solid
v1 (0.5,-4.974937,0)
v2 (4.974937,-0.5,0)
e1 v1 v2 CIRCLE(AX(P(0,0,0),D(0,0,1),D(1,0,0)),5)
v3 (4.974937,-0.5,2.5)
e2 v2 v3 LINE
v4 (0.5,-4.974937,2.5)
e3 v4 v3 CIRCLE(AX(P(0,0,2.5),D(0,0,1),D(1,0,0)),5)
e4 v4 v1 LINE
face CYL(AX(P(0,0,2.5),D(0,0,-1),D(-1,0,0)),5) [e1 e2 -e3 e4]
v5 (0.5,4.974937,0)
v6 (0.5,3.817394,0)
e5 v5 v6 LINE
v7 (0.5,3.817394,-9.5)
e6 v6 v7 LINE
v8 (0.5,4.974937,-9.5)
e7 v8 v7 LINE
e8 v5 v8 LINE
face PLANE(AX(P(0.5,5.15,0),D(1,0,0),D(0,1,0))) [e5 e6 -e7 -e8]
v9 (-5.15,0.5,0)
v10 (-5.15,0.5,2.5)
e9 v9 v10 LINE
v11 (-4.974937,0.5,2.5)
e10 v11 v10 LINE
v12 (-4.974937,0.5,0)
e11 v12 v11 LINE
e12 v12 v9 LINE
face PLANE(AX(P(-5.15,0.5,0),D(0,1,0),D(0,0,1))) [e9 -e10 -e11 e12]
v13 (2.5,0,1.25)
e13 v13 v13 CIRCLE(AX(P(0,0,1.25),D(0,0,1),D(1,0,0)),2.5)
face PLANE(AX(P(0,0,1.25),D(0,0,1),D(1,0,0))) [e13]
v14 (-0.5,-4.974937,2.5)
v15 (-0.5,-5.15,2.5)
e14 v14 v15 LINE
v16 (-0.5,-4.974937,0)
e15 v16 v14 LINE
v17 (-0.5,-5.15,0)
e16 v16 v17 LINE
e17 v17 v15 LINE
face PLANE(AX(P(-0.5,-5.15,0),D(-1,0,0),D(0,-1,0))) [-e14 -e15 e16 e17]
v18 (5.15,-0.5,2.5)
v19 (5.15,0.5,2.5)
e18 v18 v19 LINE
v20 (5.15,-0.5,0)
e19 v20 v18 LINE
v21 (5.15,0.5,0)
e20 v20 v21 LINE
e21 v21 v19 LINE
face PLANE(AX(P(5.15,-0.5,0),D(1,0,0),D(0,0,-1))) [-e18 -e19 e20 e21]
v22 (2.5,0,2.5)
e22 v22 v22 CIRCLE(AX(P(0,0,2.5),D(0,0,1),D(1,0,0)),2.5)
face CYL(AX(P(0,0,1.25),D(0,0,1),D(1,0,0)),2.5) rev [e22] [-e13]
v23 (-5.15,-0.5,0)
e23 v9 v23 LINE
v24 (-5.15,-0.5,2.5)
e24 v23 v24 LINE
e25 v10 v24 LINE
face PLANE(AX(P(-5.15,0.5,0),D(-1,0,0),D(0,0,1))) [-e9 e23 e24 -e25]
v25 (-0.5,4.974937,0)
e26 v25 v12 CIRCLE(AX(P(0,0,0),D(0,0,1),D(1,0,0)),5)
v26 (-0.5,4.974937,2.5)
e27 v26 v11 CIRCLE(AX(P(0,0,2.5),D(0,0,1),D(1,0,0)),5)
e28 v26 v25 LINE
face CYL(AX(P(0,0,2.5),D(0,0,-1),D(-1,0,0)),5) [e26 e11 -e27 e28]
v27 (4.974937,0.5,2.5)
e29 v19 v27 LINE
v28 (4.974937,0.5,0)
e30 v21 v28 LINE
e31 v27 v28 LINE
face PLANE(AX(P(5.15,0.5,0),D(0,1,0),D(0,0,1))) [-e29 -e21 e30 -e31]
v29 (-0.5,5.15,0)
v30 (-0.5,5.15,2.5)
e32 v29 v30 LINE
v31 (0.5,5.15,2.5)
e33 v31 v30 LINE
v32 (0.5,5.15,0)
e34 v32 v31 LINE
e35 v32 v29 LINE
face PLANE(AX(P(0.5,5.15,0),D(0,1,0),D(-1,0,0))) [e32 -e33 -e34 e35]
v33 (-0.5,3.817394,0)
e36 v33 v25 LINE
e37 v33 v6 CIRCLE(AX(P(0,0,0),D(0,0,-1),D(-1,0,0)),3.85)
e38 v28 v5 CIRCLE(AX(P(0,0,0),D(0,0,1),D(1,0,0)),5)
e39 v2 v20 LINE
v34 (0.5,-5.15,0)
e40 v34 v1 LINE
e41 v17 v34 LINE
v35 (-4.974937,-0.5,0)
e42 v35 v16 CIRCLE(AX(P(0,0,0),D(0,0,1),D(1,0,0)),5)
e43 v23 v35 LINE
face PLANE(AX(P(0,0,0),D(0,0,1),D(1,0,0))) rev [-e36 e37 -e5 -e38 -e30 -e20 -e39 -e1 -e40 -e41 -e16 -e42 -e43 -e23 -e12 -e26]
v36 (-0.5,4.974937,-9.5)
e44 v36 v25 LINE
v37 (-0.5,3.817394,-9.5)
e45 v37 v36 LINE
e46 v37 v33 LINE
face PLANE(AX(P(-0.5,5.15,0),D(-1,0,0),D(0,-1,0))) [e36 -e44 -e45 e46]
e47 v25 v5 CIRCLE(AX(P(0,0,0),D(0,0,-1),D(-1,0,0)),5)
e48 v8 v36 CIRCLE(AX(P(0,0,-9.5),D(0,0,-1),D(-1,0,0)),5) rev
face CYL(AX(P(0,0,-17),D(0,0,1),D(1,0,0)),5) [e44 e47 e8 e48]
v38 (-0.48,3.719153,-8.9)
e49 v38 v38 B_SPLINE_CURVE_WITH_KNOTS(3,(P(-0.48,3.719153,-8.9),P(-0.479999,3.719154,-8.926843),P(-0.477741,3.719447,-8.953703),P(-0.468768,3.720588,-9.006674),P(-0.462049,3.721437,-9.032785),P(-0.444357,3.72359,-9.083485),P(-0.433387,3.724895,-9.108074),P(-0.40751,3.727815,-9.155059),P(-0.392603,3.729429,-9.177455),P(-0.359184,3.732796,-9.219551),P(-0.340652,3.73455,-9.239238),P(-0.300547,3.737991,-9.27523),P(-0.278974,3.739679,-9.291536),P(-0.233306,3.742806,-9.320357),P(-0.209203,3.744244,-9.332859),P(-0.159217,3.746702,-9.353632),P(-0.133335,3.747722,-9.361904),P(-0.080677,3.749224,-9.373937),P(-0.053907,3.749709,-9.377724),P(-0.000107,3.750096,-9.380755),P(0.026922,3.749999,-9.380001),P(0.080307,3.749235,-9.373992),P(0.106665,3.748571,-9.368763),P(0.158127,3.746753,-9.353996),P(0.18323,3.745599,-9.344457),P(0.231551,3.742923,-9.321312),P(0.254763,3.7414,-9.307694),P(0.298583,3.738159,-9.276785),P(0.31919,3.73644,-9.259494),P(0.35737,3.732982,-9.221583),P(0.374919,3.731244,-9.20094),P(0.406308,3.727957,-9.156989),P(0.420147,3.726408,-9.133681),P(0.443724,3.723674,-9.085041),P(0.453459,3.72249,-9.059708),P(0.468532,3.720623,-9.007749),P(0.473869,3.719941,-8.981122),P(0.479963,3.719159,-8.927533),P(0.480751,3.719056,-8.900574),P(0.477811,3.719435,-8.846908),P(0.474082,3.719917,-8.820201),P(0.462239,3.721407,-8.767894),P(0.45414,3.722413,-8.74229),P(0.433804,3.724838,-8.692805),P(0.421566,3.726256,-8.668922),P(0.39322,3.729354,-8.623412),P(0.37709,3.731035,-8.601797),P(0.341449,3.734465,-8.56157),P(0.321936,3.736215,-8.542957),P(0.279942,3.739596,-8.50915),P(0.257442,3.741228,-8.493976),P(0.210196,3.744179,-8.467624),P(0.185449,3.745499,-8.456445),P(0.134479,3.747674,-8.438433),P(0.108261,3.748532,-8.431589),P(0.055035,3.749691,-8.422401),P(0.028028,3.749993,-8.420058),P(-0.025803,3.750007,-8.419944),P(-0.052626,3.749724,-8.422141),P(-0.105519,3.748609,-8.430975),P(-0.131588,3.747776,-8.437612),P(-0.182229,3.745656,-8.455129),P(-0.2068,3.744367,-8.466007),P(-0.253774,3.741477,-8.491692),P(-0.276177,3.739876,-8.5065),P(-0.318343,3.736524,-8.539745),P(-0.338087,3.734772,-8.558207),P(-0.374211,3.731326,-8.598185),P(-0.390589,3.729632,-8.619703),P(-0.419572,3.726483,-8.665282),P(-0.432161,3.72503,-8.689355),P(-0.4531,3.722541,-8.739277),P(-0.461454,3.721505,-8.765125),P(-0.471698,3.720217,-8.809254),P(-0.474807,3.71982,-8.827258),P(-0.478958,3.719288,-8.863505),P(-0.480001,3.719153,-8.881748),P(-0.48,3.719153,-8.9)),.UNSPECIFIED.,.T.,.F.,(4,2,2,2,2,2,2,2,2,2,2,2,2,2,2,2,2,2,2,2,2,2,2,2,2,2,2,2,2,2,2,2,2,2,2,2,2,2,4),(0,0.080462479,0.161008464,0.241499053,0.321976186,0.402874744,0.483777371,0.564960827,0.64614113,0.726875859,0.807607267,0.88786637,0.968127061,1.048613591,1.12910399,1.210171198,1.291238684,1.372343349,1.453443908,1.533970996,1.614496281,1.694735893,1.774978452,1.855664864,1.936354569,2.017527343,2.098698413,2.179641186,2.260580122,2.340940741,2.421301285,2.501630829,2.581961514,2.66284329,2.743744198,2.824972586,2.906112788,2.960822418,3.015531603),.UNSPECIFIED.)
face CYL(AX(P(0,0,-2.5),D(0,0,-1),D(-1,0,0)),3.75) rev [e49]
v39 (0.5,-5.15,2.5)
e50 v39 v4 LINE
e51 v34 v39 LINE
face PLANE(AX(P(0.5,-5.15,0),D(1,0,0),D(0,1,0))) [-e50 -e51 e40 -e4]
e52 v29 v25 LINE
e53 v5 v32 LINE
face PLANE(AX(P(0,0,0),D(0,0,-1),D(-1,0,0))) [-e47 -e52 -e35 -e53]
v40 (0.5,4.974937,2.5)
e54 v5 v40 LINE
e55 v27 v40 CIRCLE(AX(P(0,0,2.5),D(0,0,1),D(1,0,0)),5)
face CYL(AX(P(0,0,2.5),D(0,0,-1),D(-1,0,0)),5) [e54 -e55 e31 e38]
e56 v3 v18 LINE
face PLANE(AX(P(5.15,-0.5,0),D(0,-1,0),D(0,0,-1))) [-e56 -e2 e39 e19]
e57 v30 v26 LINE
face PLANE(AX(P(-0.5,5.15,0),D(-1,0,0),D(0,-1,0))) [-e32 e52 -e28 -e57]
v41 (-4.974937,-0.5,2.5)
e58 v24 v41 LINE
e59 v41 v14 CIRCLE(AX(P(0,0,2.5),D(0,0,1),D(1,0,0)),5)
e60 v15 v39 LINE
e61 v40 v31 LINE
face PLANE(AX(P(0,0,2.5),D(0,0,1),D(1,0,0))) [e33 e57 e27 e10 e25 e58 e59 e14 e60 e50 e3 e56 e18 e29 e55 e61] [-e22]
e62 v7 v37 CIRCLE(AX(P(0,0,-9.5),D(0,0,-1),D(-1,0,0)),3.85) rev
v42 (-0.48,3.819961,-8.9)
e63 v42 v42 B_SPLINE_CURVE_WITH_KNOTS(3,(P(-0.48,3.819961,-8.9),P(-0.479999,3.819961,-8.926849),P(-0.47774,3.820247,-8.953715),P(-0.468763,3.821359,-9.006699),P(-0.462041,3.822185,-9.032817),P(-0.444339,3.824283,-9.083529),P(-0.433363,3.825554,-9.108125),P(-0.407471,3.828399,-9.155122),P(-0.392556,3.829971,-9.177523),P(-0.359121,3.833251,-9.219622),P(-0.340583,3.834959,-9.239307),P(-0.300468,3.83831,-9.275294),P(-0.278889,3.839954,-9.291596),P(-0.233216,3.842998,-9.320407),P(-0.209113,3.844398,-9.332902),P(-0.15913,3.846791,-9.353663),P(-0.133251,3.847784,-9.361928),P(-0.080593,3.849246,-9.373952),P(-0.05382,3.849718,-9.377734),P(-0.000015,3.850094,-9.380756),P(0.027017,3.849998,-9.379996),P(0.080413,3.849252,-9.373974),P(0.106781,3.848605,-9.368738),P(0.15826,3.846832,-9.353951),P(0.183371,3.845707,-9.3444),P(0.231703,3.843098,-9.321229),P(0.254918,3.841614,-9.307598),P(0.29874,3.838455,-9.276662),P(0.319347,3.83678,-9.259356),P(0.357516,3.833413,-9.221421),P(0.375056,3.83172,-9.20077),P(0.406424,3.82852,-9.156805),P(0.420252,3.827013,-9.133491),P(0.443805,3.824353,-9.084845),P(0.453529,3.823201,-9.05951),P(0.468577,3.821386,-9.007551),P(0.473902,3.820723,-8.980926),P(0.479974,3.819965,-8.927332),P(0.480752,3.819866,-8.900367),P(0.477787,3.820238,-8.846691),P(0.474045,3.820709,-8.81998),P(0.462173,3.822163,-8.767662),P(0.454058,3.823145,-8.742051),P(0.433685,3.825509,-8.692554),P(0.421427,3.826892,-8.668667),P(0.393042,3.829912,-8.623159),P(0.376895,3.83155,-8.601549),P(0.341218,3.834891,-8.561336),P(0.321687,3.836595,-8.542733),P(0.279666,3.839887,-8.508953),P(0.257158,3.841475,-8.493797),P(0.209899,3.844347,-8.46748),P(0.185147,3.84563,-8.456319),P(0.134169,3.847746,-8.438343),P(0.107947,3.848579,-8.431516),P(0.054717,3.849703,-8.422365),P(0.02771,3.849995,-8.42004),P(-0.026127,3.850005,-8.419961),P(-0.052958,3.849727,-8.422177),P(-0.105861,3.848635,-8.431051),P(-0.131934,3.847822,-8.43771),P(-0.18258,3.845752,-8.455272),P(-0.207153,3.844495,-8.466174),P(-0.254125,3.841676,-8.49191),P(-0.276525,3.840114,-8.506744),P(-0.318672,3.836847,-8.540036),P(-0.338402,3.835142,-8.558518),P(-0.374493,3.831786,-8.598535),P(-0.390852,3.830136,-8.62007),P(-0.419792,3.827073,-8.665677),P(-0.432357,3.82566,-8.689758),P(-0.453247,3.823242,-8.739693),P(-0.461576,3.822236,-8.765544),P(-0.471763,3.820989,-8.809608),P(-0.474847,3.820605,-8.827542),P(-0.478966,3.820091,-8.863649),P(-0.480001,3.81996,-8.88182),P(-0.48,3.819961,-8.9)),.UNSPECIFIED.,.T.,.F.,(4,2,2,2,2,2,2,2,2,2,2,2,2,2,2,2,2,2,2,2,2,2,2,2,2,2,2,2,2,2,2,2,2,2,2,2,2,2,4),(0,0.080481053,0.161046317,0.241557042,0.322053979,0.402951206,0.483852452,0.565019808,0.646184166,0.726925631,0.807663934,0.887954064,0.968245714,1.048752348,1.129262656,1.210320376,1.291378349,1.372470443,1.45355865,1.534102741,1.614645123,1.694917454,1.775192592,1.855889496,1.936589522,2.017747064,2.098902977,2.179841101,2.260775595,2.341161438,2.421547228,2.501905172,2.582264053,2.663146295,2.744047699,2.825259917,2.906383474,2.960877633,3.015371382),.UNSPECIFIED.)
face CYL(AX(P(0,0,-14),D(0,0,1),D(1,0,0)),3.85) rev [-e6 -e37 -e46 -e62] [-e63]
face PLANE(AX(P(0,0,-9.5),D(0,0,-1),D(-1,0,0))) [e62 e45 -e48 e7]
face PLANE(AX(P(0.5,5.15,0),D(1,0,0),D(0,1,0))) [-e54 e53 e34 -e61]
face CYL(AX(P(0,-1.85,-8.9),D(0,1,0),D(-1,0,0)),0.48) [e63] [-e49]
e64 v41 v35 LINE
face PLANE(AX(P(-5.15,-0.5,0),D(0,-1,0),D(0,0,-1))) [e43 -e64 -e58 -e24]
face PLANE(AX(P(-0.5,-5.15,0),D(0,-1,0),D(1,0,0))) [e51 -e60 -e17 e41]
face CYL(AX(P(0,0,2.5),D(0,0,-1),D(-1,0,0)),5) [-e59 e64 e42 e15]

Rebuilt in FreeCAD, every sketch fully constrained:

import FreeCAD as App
import Part
import Sketcher

V = App.Vector

doc = App.newDocument("Part")
body = doc.addObject("PartDesign::Body", "Body")

# Sketch on XY plane
sketch1 = doc.addObject("Sketcher::SketchObject", "Sketch")
body.addObject(sketch1)
sketch1.AttachmentSupport = (doc.XY_Plane, [""])
sketch1.MapMode = "FlatFace"
sketch1.addGeometry(Part.Circle(V(0, 0, 0), V(0, 0, 1), 5), False)
sketch1.addConstraint([
    Sketcher.Constraint("Coincident", 0, 3, -1, 1),
    Sketcher.Constraint("Diameter", 0, 10.0),
])
pad1 = doc.addObject("PartDesign::Pad", "Pad")
body.addObject(pad1)
pad1.Profile = sketch1
pad1.Length = 2.5

# Sketch on XY plane
sketch2 = doc.addObject("Sketcher::SketchObject", "Sketch001")
body.addObject(sketch2)
sketch2.AttachmentSupport = (doc.XY_Plane, [""])
sketch2.MapMode = "FlatFace"
sketch2.AttachmentOffset = App.Placement(V(0, 0, 2.5), App.Rotation())
sketch2.addGeometry([
    Part.LineSegment(V(-5.15, 0.5, 0), V(-5.15, -0.5, 0)),
    Part.LineSegment(V(-5.15, -0.5, 0), V(-4.9, -0.5, 0)),
    Part.LineSegment(V(-4.9, -0.5, 0), V(-4.9, 0.5, 0)),
    Part.LineSegment(V(-4.9, 0.5, 0), V(-5.15, 0.5, 0)),
], False)
sketch2.addConstraint([
    Sketcher.Constraint("Coincident", 0, 2, 1, 1),
    Sketcher.Constraint("Coincident", 1, 2, 2, 1),
    Sketcher.Constraint("Coincident", 2, 2, 3, 1),
    Sketcher.Constraint("Coincident", 3, 2, 0, 1),
    Sketcher.Constraint("Vertical", 0),
    Sketcher.Constraint("Horizontal", 1),
    Sketcher.Constraint("Vertical", 2),
    Sketcher.Constraint("Horizontal", 3),
    Sketcher.Constraint("DistanceY", 0, 2, 0, 1, 1.0),
    Sketcher.Constraint("DistanceX", 1, 1, 1, 2, 0.25),
    Sketcher.Constraint("DistanceY", 0, 2, -1, 1, 0.5),
    Sketcher.Constraint("DistanceX", 1, 2, -1, 1, 4.9),
])
pad2 = doc.addObject("PartDesign::Pad", "Pad001")
body.addObject(pad2)
pad2.Profile = sketch2
pad2.Length = 2.5
pad2.Reversed = True
doc.recompute()

polarpattern = doc.addObject("PartDesign::PolarPattern", "PolarPattern")
body.addObject(polarpattern)
polarpattern.Originals = [pad2]
polarpattern.Axis = (doc.Z_Axis, [""])
polarpattern.Angle = 360
polarpattern.Occurrences = 4
body.Tip = polarpattern

# Sketch on XY plane
sketch3 = doc.addObject("Sketcher::SketchObject", "Sketch002")
body.addObject(sketch3)
sketch3.AttachmentSupport = (doc.XY_Plane, [""])
sketch3.MapMode = "FlatFace"
sketch3.AttachmentOffset = App.Placement(V(0, 0, 2.5), App.Rotation())
sketch3.addGeometry(Part.Circle(V(0, 0, 0), V(0, 0, 1), 2.5), False)
sketch3.addConstraint([
    Sketcher.Constraint("Coincident", 0, 3, -1, 1),
    Sketcher.Constraint("Diameter", 0, 5.0),
])
pocket1 = doc.addObject("PartDesign::Pocket", "Pocket")
body.addObject(pocket1)
pocket1.Profile = sketch3
pocket1.Length = 1.25

# Sketch on XY plane
sketch4 = doc.addObject("Sketcher::SketchObject", "Sketch003")
body.addObject(sketch4)
sketch4.AttachmentSupport = (doc.XY_Plane, [""])
sketch4.MapMode = "FlatFace"
sketch4.addGeometry([
    Part.LineSegment(V(0.5, 5.15, 0), V(0.5, 3.8, 0)),
    Part.LineSegment(V(0.5, 3.8, 0), V(-0.5, 3.8, 0)),
    Part.LineSegment(V(-0.5, 3.8, 0), V(-0.5, 5.15, 0)),
    Part.LineSegment(V(-0.5, 5.15, 0), V(0.5, 5.15, 0)),
], False)
sketch4.addConstraint([
    Sketcher.Constraint("Coincident", 0, 2, 1, 1),
    Sketcher.Constraint("Coincident", 1, 2, 2, 1),
    Sketcher.Constraint("Coincident", 2, 2, 3, 1),
    Sketcher.Constraint("Coincident", 3, 2, 0, 1),
    Sketcher.Constraint("Vertical", 0),
    Sketcher.Constraint("Horizontal", 1),
    Sketcher.Constraint("Vertical", 2),
    Sketcher.Constraint("Horizontal", 3),
    Sketcher.Constraint("DistanceX", 1, 2, 1, 1, 1.0),
    Sketcher.Constraint("DistanceY", 0, 2, 0, 1, 1.35),
    Sketcher.Constraint("DistanceX", -1, 1, 0, 2, 0.5),
    Sketcher.Constraint("DistanceY", -1, 1, 0, 2, 3.8),
])
pad3 = doc.addObject("PartDesign::Pad", "Pad002")
body.addObject(pad3)
pad3.Profile = sketch4
pad3.Length = 9.5
pad3.Reversed = True

# Sketch on XY plane
sketch5 = doc.addObject("Sketcher::SketchObject", "Sketch004")
body.addObject(sketch5)
sketch5.AttachmentSupport = (doc.XY_Plane, [""])
sketch5.MapMode = "FlatFace"
sketch5.addGeometry(Part.Circle(V(0, 0, 0), V(0, 0, 1), 3.85), False)
sketch5.addConstraint([
    Sketcher.Constraint("Coincident", 0, 3, -1, 1),
    Sketcher.Constraint("Diameter", 0, 7.7),
])
pocket2 = doc.addObject("PartDesign::Pocket", "Pocket001")
body.addObject(pocket2)
pocket2.Profile = sketch5
pocket2.Length = 14

# Sketch on XZ plane
sketch6 = doc.addObject("Sketcher::SketchObject", "Sketch005")
body.addObject(sketch6)
sketch6.AttachmentSupport = (doc.XZ_Plane, [""])
sketch6.MapMode = "FlatFace"
sketch6.AttachmentOffset = App.Placement(V(0, 0, -5.15), App.Rotation())
sketch6.addGeometry(Part.Circle(V(0, -8.9, 0), V(0, 0, 1), 0.48), False)
sketch6.addConstraint([
    Sketcher.Constraint("PointOnObject", 0, 3, -2),
    Sketcher.Constraint("Diameter", 0, 0.96),
    Sketcher.Constraint("DistanceY", 0, 3, -1, 1, 8.9),
])
pad4 = doc.addObject("PartDesign::Pad", "Pad003")
body.addObject(pad4)
pad4.Profile = sketch6
pad4.Length = 7

# Sketch on XY plane
sketch7 = doc.addObject("Sketcher::SketchObject", "Sketch006")
body.addObject(sketch7)
sketch7.AttachmentSupport = (doc.XY_Plane, [""])
sketch7.MapMode = "FlatFace"
sketch7.AttachmentOffset = App.Placement(V(0, 0, -9.5), App.Rotation())
sketch7.addGeometry(Part.Circle(V(0, 0, 0), V(0, 0, 1), 3.75), False)
sketch7.addConstraint([
    Sketcher.Constraint("Coincident", 0, 3, -1, 1),
    Sketcher.Constraint("Diameter", 0, 7.5),
])
pocket3 = doc.addObject("PartDesign::Pocket", "Pocket002")
body.addObject(pocket3)
pocket3.Profile = sketch7
pocket3.Length = 7
pocket3.Reversed = True

# Sketch on XY plane
sketch8 = doc.addObject("Sketcher::SketchObject", "Sketch007")
body.addObject(sketch8)
sketch8.AttachmentSupport = (doc.XY_Plane, [""])
sketch8.MapMode = "FlatFace"
sketch8.AttachmentOffset = App.Placement(V(0, 0, -17), App.Rotation())
sketch8.addGeometry([
    Part.Circle(V(0, 0, 0), V(0, 0, 1), 6.79499),
    Part.Circle(V(0, 0, 0), V(0, 0, 1), 5),
], False)
sketch8.addConstraint([
    Sketcher.Constraint("Coincident", 0, 3, -1, 1),
    Sketcher.Constraint("Coincident", 1, 3, -1, 1),
    Sketcher.Constraint("Diameter", 1, 10.0),
    Sketcher.Constraint("Diameter", 0, 13.58998),
])
pocket4 = doc.addObject("PartDesign::Pocket", "Pocket003")
body.addObject(pocket4)
pocket4.Profile = sketch8
pocket4.Length = 17
pocket4.Reversed = True

doc.recompute()
